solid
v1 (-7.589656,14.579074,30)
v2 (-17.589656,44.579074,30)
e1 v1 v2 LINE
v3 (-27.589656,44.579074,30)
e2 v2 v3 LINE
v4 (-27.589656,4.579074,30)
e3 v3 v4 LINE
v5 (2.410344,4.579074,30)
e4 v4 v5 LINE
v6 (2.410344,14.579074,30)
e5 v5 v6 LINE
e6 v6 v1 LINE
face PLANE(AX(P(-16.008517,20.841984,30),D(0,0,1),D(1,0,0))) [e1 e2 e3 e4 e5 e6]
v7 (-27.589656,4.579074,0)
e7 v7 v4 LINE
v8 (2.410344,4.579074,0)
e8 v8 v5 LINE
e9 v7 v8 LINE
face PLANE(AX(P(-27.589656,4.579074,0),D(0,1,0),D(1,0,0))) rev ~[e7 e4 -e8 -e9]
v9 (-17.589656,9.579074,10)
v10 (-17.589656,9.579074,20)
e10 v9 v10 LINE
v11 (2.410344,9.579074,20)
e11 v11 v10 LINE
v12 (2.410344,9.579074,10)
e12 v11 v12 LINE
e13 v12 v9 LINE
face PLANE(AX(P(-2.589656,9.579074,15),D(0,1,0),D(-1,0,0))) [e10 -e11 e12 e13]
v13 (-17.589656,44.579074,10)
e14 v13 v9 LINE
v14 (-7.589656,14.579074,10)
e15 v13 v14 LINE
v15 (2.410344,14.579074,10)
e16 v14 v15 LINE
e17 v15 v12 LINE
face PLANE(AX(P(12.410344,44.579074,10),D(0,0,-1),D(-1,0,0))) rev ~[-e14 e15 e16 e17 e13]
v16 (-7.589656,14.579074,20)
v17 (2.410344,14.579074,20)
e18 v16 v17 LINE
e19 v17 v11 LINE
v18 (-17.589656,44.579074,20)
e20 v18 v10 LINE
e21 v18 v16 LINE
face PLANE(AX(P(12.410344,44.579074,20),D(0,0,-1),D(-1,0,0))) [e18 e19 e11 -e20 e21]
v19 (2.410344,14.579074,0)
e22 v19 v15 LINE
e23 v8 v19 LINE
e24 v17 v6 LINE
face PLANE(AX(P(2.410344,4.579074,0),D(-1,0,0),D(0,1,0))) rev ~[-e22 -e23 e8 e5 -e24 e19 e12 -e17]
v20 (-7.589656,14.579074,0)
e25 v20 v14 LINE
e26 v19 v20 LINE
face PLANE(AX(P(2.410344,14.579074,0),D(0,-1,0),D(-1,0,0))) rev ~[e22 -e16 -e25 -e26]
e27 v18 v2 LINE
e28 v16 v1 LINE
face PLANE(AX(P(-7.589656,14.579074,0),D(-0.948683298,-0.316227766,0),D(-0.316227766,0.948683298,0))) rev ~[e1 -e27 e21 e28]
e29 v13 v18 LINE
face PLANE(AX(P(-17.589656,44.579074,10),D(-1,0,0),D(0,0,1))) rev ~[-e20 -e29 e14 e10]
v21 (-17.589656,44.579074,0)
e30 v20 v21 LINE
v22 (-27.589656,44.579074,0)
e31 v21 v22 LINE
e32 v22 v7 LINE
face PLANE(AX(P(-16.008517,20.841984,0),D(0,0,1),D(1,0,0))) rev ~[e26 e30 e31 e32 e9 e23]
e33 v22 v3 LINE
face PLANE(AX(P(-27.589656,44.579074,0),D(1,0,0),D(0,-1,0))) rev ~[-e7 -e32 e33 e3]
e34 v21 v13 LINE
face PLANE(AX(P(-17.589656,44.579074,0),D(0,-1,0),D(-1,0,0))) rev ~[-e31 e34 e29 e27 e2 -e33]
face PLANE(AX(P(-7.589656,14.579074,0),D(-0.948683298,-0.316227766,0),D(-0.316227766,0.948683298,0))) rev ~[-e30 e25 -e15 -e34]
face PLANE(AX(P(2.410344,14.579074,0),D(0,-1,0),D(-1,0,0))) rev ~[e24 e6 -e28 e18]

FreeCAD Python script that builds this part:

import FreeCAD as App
import Part
import Sketcher
from FreeCAD import Vector


def add_polygon(sketch, points):
    """Adds a closed chain of lines whose ends are joined by coincident constraints."""
    first, n = sketch.GeometryCount, len(points)
    for a, b in zip(points, points[1:] + points[:1]):
        sketch.addGeometry(Part.LineSegment(App.Vector(*a, 0), App.Vector(*b, 0)), False)
    for i in range(n):
        sketch.addConstraint(Sketcher.Constraint("Coincident", first + i, 2, first + (i + 1) % n, 1))

doc = App.newDocument("Part")
params = doc.addObject("Spreadsheet::Sheet", "Params")
for row, (alias, value) in enumerate([
    ("sketch1_width", "10 mm"),
    ("sketch1_width2", "30 mm"),
    ("sketch1_height", "40 mm"),
    ("pad1_length", "30 mm"),
    ("sketch2_width", "30 mm"),
    ("sketch2_height", "10 mm"),
    ("pocket1_length", "35 mm"),
], start=1):
    params.set(f"A{row}", alias)
    params.set(f"B{row}", "=" + value)
    params.setAlias(f"B{row}", alias)

body = doc.addObject("PartDesign::Body", "Body")

# Sketch on XY plane
sketch1 = doc.addObject("Sketcher::SketchObject", "Sketch")
body.addObject(sketch1)
sketch1.AttachmentSupport = (doc.XY_Plane, [""])
sketch1.MapMode = "FlatFace"
add_polygon(sketch1, [(-17.589656, 44.579074), (-27.589656, 44.579074), (-27.589656, 4.579074), (2.410344, 4.579074), (2.410344, 14.579074), (-7.589656, 14.579074)])  # lines 0-5
sketch1.addConstraint([
    Sketcher.Constraint("Horizontal", 0),
    Sketcher.Constraint("Vertical", 1),
    Sketcher.Constraint("Horizontal", 2),
    Sketcher.Constraint("Vertical", 3),
    Sketcher.Constraint("Horizontal", 4),
    Sketcher.Constraint("Equal", 0, 4),
    Sketcher.Constraint("Equal", 4, 3),
    Sketcher.Constraint("DistanceX", 0, 2, 0, 1, 10.0),
    Sketcher.Constraint("DistanceX", 2, 1, 2, 2, 30.0),
    Sketcher.Constraint("DistanceY", 1, 2, 1, 1, 40.0),
    Sketcher.Constraint("DistanceX", 0, 2, -1, 1, 27.589656),
    Sketcher.Constraint("DistanceY", -1, 1, 0, 2, 44.579074),
])
sketch1.setExpression("Constraints[13]", "Params.sketch1_width")
sketch1.setExpression("Constraints[14]", "Params.sketch1_width2")
sketch1.setExpression("Constraints[15]", "Params.sketch1_height")
pad1 = doc.addObject("PartDesign::Pad", "Pad")
body.addObject(pad1)
pad1.Profile = sketch1
pad1.setExpression("Length", "Params.pad1_length")

# Sketch on XZ plane
sketch2 = doc.addObject("Sketcher::SketchObject", "Sketch001")
body.addObject(sketch2)
sketch2.AttachmentSupport = (doc.XZ_Plane, [""])
sketch2.MapMode = "FlatFace"
sketch2.AttachmentOffset = App.Placement(Vector(0, 0, -44.579074), App.Rotation())
add_polygon(sketch2, [(12.410344, 20), (12.410344, 10), (-17.589656, 10), (-17.589656, 20)])  # lines 0-3
sketch2.addConstraint([
    Sketcher.Constraint("Vertical", 0),
    Sketcher.Constraint("Horizontal", 1),
    Sketcher.Constraint("Vertical", 2),
    Sketcher.Constraint("Horizontal", 3),
    Sketcher.Constraint("DistanceX", 1, 2, 1, 1, 30.0),
    Sketcher.Constraint("DistanceY", 0, 2, 0, 1, 10.0),
    Sketcher.Constraint("DistanceY", -1, 1, 0, 2, 10.0),
    Sketcher.Constraint("DistanceX", -1, 1, 0, 2, 12.410344),
])
sketch2.setExpression("Constraints[8]", "Params.sketch2_width")
sketch2.setExpression("Constraints[9]", "Params.sketch2_height")
pocket1 = doc.addObject("PartDesign::Pocket", "Pocket")
body.addObject(pocket1)
pocket1.Profile = sketch2
pocket1.setExpression("Length", "Params.pocket1_length")
pocket1.Reversed = True

doc.recompute()
